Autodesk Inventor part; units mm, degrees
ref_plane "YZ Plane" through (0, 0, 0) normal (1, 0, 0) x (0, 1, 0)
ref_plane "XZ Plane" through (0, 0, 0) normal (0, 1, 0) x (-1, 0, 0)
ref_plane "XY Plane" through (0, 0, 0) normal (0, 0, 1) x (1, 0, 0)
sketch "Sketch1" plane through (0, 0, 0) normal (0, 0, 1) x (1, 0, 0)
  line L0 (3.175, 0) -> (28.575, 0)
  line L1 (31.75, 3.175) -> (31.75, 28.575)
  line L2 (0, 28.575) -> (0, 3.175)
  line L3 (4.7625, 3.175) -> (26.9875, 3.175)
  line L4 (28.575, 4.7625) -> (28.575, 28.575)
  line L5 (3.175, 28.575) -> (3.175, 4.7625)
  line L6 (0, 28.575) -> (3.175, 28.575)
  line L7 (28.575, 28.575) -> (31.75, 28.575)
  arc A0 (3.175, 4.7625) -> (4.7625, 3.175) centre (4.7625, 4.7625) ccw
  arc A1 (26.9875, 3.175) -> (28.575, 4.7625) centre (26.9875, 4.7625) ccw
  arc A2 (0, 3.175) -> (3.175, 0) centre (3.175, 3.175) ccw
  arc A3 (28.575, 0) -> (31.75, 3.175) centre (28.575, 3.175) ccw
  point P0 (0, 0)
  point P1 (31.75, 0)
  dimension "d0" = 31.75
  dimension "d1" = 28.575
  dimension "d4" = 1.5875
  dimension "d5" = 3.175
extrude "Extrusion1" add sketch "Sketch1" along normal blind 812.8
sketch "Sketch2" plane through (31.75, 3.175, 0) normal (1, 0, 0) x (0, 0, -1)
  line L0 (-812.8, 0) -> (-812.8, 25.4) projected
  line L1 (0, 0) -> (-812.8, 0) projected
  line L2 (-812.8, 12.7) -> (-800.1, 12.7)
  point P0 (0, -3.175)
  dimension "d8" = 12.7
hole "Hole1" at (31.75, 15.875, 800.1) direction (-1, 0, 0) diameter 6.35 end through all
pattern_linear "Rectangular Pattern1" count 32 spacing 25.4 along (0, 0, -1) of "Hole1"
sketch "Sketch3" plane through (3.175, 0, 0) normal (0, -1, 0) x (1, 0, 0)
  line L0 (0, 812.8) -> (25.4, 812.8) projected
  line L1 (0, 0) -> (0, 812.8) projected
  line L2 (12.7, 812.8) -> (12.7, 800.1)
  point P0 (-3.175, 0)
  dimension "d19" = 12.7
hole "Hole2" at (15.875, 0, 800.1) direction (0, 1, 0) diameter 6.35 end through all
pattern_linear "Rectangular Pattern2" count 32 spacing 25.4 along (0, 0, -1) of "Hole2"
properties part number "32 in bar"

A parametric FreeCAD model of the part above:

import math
import FreeCAD as App
import Part
import Sketcher
Q = App.Units.Quantity

doc = App.newDocument("Part")
body = doc.addObject("PartDesign::Body", "Body")

# Sketch on XY plane
sketch1 = body.newObject("Sketcher::SketchObject", "Sketch")
sketch1.AttachmentSupport = (doc.getObject("XY_Plane"), [""])
sketch1.MapMode = "FlatFace"
sketch1.addGeometry([
    Part.ArcOfCircle(Part.Circle(App.Vector(3.2, 3.2, 0), App.Vector(0, 0, 1), 3.2), math.radians(180), math.radians(270)),  # 0
    Part.LineSegment(App.Vector(3.2, 0, 0), App.Vector(28.6, 0, 0)),  # 1
    Part.ArcOfCircle(Part.Circle(App.Vector(28.6, 3.2, 0), App.Vector(0, 0, 1), 3.2), math.radians(-90), math.radians(0)),  # 2
    Part.LineSegment(App.Vector(31.8, 3.2, 0), App.Vector(31.8, 28.6, 0)),  # 3
    Part.LineSegment(App.Vector(31.8, 28.6, 0), App.Vector(28.6, 28.6, 0)),  # 4
    Part.LineSegment(App.Vector(28.6, 28.6, 0), App.Vector(28.6, 4.8, 0)),  # 5
    Part.ArcOfCircle(Part.Circle(App.Vector(27, 4.8, 0), App.Vector(0, 0, 1), 1.6), math.radians(-90), math.radians(0)),  # 6
    Part.LineSegment(App.Vector(27, 3.2, 0), App.Vector(4.8, 3.2, 0)),  # 7
    Part.ArcOfCircle(Part.Circle(App.Vector(4.8, 4.8, 0), App.Vector(0, 0, 1), 1.6), math.radians(180), math.radians(270)),  # 8
    Part.LineSegment(App.Vector(3.2, 4.8, 0), App.Vector(3.2, 28.6, 0)),  # 9
    Part.LineSegment(App.Vector(3.2, 28.6, 0), App.Vector(0, 28.6, 0)),  # 10
    Part.LineSegment(App.Vector(0, 28.6, 0), App.Vector(0, 3.2, 0)),  # 11
], False)
sketch1.addConstraint([
    Sketcher.Constraint("Tangent", 0, 2, 1, 1),
    Sketcher.Constraint("Tangent", 1, 2, 2, 1),
    Sketcher.Constraint("Tangent", 2, 2, 3, 1),
    Sketcher.Constraint("Coincident", 3, 2, 4, 1),
    Sketcher.Constraint("Coincident", 4, 2, 5, 1),
    Sketcher.Constraint("Tangent", 5, 2, 6, 2),
    Sketcher.Constraint("Tangent", 6, 1, 7, 1),
    Sketcher.Constraint("Tangent", 7, 2, 8, 2),
    Sketcher.Constraint("Tangent", 8, 1, 9, 1),
    Sketcher.Constraint("Coincident", 9, 2, 10, 1),
    Sketcher.Constraint("Coincident", 10, 2, 11, 1),
    Sketcher.Constraint("Tangent", 11, 2, 0, 1),
    Sketcher.Constraint("Horizontal", 1),
    Sketcher.Constraint("Vertical", 3),
    Sketcher.Constraint("Horizontal", 4),
    Sketcher.Constraint("Vertical", 5),
    Sketcher.Constraint("Horizontal", 7),
    Sketcher.Constraint("Vertical", 9),
    Sketcher.Constraint("Horizontal", 10),
    Sketcher.Constraint("Vertical", 11),
    Sketcher.Constraint("Equal", 0, 2),
    Sketcher.Constraint("Equal", 6, 8),
    Sketcher.Constraint("PointOnObject", 0, 2, -1),
    Sketcher.Constraint("PointOnObject", 10, 2, -2),
    Sketcher.Constraint("Horizontal", 2, 2, 6, 1),
    Sketcher.Constraint("Horizontal", 4, 2, 9, 2),
    Sketcher.Constraint("Vertical", 1, 2, 4, 2),
    Sketcher.Constraint("Vertical", 0, 2, 8, 1),
    Sketcher.Constraint("Equal", 1, 3),
    Sketcher.Constraint("Radius", 0, Q("0.125 in")),
    Sketcher.Constraint("Radius", 6, Q("0.0625 in")),
    Sketcher.Constraint("DistanceX", 1, 1, 1, 2, Q("1 in")),
])
pad1 = body.newObject("PartDesign::Pad", "Pad")
pad1.Profile = sketch1
pad1.Length = Q("32 in")

# Sketch on YZ plane
sketch2 = body.newObject("Sketcher::SketchObject", "Sketch001")
sketch2.AttachmentSupport = (doc.getObject("YZ_Plane"), [""])
sketch2.MapMode = "FlatFace"
sketch2.AttachmentOffset = App.Placement(App.Vector(0, 0, 1.25 * 25.4), App.Rotation())
sketch2.addGeometry(Part.Circle(App.Vector(15.9, 800.1, 0), App.Vector(0, 0, 1), 3.2), False)
sketch2.addConstraint([
    Sketcher.Constraint("Diameter", 0, Q("0.25 in")),
    Sketcher.Constraint("DistanceY", -1, 1, 0, 3, Q("31.5 in")),
    Sketcher.Constraint("DistanceX", -1, 1, 0, 3, Q("0.625 in")),
])
doc.recompute()
hole = body.newObject("PartDesign::Hole", "Hole")
hole.Profile = sketch2
hole.ThreadType = "None"
hole.Diameter = Q("0.25 in")
hole.DepthType = "ThroughAll"
doc.recompute()

linearpattern = body.newObject("PartDesign::LinearPattern", "LinearPattern")
linearpattern.Originals = [hole]
linearpattern.Direction = (doc.getObject("Z_Axis"), [""])
linearpattern.Mode = "offset"
linearpattern.Offset = Q("1 in")
linearpattern.Occurrences = 32
linearpattern.Reversed = True
body.Tip = linearpattern

# Sketch on XZ plane
sketch3 = body.newObject("Sketcher::SketchObject", "Sketch002")
sketch3.AttachmentSupport = (doc.getObject("XZ_Plane"), [""])
sketch3.MapMode = "FlatFace"
sketch3.addGeometry(Part.Circle(App.Vector(15.9, 800.1, 0), App.Vector(0, 0, 1), 3.2), False)
sketch3.addConstraint([
    Sketcher.Constraint("Diameter", 0, Q("0.25 in")),
    Sketcher.Constraint("DistanceY", -1, 1, 0, 3, Q("31.5 in")),
    Sketcher.Constraint("DistanceX", -1, 1, 0, 3, Q("0.625 in")),
])
doc.recompute()
hole2 = body.newObject("PartDesign::Hole", "Hole001")
hole2.Profile = sketch3
hole2.ThreadType = "None"
hole2.Diameter = Q("0.25 in")
hole2.DepthType = "ThroughAll"
doc.recompute()

linearpattern2 = body.newObject("PartDesign::LinearPattern", "LinearPattern001")
linearpattern2.Originals = [hole2]
linearpattern2.Direction = (doc.getObject("Z_Axis"), [""])
linearpattern2.Mode = "offset"
linearpattern2.Offset = Q("1 in")
linearpattern2.Occurrences = 32
linearpattern2.Reversed = True
body.Tip = linearpattern2

doc.recompute()
